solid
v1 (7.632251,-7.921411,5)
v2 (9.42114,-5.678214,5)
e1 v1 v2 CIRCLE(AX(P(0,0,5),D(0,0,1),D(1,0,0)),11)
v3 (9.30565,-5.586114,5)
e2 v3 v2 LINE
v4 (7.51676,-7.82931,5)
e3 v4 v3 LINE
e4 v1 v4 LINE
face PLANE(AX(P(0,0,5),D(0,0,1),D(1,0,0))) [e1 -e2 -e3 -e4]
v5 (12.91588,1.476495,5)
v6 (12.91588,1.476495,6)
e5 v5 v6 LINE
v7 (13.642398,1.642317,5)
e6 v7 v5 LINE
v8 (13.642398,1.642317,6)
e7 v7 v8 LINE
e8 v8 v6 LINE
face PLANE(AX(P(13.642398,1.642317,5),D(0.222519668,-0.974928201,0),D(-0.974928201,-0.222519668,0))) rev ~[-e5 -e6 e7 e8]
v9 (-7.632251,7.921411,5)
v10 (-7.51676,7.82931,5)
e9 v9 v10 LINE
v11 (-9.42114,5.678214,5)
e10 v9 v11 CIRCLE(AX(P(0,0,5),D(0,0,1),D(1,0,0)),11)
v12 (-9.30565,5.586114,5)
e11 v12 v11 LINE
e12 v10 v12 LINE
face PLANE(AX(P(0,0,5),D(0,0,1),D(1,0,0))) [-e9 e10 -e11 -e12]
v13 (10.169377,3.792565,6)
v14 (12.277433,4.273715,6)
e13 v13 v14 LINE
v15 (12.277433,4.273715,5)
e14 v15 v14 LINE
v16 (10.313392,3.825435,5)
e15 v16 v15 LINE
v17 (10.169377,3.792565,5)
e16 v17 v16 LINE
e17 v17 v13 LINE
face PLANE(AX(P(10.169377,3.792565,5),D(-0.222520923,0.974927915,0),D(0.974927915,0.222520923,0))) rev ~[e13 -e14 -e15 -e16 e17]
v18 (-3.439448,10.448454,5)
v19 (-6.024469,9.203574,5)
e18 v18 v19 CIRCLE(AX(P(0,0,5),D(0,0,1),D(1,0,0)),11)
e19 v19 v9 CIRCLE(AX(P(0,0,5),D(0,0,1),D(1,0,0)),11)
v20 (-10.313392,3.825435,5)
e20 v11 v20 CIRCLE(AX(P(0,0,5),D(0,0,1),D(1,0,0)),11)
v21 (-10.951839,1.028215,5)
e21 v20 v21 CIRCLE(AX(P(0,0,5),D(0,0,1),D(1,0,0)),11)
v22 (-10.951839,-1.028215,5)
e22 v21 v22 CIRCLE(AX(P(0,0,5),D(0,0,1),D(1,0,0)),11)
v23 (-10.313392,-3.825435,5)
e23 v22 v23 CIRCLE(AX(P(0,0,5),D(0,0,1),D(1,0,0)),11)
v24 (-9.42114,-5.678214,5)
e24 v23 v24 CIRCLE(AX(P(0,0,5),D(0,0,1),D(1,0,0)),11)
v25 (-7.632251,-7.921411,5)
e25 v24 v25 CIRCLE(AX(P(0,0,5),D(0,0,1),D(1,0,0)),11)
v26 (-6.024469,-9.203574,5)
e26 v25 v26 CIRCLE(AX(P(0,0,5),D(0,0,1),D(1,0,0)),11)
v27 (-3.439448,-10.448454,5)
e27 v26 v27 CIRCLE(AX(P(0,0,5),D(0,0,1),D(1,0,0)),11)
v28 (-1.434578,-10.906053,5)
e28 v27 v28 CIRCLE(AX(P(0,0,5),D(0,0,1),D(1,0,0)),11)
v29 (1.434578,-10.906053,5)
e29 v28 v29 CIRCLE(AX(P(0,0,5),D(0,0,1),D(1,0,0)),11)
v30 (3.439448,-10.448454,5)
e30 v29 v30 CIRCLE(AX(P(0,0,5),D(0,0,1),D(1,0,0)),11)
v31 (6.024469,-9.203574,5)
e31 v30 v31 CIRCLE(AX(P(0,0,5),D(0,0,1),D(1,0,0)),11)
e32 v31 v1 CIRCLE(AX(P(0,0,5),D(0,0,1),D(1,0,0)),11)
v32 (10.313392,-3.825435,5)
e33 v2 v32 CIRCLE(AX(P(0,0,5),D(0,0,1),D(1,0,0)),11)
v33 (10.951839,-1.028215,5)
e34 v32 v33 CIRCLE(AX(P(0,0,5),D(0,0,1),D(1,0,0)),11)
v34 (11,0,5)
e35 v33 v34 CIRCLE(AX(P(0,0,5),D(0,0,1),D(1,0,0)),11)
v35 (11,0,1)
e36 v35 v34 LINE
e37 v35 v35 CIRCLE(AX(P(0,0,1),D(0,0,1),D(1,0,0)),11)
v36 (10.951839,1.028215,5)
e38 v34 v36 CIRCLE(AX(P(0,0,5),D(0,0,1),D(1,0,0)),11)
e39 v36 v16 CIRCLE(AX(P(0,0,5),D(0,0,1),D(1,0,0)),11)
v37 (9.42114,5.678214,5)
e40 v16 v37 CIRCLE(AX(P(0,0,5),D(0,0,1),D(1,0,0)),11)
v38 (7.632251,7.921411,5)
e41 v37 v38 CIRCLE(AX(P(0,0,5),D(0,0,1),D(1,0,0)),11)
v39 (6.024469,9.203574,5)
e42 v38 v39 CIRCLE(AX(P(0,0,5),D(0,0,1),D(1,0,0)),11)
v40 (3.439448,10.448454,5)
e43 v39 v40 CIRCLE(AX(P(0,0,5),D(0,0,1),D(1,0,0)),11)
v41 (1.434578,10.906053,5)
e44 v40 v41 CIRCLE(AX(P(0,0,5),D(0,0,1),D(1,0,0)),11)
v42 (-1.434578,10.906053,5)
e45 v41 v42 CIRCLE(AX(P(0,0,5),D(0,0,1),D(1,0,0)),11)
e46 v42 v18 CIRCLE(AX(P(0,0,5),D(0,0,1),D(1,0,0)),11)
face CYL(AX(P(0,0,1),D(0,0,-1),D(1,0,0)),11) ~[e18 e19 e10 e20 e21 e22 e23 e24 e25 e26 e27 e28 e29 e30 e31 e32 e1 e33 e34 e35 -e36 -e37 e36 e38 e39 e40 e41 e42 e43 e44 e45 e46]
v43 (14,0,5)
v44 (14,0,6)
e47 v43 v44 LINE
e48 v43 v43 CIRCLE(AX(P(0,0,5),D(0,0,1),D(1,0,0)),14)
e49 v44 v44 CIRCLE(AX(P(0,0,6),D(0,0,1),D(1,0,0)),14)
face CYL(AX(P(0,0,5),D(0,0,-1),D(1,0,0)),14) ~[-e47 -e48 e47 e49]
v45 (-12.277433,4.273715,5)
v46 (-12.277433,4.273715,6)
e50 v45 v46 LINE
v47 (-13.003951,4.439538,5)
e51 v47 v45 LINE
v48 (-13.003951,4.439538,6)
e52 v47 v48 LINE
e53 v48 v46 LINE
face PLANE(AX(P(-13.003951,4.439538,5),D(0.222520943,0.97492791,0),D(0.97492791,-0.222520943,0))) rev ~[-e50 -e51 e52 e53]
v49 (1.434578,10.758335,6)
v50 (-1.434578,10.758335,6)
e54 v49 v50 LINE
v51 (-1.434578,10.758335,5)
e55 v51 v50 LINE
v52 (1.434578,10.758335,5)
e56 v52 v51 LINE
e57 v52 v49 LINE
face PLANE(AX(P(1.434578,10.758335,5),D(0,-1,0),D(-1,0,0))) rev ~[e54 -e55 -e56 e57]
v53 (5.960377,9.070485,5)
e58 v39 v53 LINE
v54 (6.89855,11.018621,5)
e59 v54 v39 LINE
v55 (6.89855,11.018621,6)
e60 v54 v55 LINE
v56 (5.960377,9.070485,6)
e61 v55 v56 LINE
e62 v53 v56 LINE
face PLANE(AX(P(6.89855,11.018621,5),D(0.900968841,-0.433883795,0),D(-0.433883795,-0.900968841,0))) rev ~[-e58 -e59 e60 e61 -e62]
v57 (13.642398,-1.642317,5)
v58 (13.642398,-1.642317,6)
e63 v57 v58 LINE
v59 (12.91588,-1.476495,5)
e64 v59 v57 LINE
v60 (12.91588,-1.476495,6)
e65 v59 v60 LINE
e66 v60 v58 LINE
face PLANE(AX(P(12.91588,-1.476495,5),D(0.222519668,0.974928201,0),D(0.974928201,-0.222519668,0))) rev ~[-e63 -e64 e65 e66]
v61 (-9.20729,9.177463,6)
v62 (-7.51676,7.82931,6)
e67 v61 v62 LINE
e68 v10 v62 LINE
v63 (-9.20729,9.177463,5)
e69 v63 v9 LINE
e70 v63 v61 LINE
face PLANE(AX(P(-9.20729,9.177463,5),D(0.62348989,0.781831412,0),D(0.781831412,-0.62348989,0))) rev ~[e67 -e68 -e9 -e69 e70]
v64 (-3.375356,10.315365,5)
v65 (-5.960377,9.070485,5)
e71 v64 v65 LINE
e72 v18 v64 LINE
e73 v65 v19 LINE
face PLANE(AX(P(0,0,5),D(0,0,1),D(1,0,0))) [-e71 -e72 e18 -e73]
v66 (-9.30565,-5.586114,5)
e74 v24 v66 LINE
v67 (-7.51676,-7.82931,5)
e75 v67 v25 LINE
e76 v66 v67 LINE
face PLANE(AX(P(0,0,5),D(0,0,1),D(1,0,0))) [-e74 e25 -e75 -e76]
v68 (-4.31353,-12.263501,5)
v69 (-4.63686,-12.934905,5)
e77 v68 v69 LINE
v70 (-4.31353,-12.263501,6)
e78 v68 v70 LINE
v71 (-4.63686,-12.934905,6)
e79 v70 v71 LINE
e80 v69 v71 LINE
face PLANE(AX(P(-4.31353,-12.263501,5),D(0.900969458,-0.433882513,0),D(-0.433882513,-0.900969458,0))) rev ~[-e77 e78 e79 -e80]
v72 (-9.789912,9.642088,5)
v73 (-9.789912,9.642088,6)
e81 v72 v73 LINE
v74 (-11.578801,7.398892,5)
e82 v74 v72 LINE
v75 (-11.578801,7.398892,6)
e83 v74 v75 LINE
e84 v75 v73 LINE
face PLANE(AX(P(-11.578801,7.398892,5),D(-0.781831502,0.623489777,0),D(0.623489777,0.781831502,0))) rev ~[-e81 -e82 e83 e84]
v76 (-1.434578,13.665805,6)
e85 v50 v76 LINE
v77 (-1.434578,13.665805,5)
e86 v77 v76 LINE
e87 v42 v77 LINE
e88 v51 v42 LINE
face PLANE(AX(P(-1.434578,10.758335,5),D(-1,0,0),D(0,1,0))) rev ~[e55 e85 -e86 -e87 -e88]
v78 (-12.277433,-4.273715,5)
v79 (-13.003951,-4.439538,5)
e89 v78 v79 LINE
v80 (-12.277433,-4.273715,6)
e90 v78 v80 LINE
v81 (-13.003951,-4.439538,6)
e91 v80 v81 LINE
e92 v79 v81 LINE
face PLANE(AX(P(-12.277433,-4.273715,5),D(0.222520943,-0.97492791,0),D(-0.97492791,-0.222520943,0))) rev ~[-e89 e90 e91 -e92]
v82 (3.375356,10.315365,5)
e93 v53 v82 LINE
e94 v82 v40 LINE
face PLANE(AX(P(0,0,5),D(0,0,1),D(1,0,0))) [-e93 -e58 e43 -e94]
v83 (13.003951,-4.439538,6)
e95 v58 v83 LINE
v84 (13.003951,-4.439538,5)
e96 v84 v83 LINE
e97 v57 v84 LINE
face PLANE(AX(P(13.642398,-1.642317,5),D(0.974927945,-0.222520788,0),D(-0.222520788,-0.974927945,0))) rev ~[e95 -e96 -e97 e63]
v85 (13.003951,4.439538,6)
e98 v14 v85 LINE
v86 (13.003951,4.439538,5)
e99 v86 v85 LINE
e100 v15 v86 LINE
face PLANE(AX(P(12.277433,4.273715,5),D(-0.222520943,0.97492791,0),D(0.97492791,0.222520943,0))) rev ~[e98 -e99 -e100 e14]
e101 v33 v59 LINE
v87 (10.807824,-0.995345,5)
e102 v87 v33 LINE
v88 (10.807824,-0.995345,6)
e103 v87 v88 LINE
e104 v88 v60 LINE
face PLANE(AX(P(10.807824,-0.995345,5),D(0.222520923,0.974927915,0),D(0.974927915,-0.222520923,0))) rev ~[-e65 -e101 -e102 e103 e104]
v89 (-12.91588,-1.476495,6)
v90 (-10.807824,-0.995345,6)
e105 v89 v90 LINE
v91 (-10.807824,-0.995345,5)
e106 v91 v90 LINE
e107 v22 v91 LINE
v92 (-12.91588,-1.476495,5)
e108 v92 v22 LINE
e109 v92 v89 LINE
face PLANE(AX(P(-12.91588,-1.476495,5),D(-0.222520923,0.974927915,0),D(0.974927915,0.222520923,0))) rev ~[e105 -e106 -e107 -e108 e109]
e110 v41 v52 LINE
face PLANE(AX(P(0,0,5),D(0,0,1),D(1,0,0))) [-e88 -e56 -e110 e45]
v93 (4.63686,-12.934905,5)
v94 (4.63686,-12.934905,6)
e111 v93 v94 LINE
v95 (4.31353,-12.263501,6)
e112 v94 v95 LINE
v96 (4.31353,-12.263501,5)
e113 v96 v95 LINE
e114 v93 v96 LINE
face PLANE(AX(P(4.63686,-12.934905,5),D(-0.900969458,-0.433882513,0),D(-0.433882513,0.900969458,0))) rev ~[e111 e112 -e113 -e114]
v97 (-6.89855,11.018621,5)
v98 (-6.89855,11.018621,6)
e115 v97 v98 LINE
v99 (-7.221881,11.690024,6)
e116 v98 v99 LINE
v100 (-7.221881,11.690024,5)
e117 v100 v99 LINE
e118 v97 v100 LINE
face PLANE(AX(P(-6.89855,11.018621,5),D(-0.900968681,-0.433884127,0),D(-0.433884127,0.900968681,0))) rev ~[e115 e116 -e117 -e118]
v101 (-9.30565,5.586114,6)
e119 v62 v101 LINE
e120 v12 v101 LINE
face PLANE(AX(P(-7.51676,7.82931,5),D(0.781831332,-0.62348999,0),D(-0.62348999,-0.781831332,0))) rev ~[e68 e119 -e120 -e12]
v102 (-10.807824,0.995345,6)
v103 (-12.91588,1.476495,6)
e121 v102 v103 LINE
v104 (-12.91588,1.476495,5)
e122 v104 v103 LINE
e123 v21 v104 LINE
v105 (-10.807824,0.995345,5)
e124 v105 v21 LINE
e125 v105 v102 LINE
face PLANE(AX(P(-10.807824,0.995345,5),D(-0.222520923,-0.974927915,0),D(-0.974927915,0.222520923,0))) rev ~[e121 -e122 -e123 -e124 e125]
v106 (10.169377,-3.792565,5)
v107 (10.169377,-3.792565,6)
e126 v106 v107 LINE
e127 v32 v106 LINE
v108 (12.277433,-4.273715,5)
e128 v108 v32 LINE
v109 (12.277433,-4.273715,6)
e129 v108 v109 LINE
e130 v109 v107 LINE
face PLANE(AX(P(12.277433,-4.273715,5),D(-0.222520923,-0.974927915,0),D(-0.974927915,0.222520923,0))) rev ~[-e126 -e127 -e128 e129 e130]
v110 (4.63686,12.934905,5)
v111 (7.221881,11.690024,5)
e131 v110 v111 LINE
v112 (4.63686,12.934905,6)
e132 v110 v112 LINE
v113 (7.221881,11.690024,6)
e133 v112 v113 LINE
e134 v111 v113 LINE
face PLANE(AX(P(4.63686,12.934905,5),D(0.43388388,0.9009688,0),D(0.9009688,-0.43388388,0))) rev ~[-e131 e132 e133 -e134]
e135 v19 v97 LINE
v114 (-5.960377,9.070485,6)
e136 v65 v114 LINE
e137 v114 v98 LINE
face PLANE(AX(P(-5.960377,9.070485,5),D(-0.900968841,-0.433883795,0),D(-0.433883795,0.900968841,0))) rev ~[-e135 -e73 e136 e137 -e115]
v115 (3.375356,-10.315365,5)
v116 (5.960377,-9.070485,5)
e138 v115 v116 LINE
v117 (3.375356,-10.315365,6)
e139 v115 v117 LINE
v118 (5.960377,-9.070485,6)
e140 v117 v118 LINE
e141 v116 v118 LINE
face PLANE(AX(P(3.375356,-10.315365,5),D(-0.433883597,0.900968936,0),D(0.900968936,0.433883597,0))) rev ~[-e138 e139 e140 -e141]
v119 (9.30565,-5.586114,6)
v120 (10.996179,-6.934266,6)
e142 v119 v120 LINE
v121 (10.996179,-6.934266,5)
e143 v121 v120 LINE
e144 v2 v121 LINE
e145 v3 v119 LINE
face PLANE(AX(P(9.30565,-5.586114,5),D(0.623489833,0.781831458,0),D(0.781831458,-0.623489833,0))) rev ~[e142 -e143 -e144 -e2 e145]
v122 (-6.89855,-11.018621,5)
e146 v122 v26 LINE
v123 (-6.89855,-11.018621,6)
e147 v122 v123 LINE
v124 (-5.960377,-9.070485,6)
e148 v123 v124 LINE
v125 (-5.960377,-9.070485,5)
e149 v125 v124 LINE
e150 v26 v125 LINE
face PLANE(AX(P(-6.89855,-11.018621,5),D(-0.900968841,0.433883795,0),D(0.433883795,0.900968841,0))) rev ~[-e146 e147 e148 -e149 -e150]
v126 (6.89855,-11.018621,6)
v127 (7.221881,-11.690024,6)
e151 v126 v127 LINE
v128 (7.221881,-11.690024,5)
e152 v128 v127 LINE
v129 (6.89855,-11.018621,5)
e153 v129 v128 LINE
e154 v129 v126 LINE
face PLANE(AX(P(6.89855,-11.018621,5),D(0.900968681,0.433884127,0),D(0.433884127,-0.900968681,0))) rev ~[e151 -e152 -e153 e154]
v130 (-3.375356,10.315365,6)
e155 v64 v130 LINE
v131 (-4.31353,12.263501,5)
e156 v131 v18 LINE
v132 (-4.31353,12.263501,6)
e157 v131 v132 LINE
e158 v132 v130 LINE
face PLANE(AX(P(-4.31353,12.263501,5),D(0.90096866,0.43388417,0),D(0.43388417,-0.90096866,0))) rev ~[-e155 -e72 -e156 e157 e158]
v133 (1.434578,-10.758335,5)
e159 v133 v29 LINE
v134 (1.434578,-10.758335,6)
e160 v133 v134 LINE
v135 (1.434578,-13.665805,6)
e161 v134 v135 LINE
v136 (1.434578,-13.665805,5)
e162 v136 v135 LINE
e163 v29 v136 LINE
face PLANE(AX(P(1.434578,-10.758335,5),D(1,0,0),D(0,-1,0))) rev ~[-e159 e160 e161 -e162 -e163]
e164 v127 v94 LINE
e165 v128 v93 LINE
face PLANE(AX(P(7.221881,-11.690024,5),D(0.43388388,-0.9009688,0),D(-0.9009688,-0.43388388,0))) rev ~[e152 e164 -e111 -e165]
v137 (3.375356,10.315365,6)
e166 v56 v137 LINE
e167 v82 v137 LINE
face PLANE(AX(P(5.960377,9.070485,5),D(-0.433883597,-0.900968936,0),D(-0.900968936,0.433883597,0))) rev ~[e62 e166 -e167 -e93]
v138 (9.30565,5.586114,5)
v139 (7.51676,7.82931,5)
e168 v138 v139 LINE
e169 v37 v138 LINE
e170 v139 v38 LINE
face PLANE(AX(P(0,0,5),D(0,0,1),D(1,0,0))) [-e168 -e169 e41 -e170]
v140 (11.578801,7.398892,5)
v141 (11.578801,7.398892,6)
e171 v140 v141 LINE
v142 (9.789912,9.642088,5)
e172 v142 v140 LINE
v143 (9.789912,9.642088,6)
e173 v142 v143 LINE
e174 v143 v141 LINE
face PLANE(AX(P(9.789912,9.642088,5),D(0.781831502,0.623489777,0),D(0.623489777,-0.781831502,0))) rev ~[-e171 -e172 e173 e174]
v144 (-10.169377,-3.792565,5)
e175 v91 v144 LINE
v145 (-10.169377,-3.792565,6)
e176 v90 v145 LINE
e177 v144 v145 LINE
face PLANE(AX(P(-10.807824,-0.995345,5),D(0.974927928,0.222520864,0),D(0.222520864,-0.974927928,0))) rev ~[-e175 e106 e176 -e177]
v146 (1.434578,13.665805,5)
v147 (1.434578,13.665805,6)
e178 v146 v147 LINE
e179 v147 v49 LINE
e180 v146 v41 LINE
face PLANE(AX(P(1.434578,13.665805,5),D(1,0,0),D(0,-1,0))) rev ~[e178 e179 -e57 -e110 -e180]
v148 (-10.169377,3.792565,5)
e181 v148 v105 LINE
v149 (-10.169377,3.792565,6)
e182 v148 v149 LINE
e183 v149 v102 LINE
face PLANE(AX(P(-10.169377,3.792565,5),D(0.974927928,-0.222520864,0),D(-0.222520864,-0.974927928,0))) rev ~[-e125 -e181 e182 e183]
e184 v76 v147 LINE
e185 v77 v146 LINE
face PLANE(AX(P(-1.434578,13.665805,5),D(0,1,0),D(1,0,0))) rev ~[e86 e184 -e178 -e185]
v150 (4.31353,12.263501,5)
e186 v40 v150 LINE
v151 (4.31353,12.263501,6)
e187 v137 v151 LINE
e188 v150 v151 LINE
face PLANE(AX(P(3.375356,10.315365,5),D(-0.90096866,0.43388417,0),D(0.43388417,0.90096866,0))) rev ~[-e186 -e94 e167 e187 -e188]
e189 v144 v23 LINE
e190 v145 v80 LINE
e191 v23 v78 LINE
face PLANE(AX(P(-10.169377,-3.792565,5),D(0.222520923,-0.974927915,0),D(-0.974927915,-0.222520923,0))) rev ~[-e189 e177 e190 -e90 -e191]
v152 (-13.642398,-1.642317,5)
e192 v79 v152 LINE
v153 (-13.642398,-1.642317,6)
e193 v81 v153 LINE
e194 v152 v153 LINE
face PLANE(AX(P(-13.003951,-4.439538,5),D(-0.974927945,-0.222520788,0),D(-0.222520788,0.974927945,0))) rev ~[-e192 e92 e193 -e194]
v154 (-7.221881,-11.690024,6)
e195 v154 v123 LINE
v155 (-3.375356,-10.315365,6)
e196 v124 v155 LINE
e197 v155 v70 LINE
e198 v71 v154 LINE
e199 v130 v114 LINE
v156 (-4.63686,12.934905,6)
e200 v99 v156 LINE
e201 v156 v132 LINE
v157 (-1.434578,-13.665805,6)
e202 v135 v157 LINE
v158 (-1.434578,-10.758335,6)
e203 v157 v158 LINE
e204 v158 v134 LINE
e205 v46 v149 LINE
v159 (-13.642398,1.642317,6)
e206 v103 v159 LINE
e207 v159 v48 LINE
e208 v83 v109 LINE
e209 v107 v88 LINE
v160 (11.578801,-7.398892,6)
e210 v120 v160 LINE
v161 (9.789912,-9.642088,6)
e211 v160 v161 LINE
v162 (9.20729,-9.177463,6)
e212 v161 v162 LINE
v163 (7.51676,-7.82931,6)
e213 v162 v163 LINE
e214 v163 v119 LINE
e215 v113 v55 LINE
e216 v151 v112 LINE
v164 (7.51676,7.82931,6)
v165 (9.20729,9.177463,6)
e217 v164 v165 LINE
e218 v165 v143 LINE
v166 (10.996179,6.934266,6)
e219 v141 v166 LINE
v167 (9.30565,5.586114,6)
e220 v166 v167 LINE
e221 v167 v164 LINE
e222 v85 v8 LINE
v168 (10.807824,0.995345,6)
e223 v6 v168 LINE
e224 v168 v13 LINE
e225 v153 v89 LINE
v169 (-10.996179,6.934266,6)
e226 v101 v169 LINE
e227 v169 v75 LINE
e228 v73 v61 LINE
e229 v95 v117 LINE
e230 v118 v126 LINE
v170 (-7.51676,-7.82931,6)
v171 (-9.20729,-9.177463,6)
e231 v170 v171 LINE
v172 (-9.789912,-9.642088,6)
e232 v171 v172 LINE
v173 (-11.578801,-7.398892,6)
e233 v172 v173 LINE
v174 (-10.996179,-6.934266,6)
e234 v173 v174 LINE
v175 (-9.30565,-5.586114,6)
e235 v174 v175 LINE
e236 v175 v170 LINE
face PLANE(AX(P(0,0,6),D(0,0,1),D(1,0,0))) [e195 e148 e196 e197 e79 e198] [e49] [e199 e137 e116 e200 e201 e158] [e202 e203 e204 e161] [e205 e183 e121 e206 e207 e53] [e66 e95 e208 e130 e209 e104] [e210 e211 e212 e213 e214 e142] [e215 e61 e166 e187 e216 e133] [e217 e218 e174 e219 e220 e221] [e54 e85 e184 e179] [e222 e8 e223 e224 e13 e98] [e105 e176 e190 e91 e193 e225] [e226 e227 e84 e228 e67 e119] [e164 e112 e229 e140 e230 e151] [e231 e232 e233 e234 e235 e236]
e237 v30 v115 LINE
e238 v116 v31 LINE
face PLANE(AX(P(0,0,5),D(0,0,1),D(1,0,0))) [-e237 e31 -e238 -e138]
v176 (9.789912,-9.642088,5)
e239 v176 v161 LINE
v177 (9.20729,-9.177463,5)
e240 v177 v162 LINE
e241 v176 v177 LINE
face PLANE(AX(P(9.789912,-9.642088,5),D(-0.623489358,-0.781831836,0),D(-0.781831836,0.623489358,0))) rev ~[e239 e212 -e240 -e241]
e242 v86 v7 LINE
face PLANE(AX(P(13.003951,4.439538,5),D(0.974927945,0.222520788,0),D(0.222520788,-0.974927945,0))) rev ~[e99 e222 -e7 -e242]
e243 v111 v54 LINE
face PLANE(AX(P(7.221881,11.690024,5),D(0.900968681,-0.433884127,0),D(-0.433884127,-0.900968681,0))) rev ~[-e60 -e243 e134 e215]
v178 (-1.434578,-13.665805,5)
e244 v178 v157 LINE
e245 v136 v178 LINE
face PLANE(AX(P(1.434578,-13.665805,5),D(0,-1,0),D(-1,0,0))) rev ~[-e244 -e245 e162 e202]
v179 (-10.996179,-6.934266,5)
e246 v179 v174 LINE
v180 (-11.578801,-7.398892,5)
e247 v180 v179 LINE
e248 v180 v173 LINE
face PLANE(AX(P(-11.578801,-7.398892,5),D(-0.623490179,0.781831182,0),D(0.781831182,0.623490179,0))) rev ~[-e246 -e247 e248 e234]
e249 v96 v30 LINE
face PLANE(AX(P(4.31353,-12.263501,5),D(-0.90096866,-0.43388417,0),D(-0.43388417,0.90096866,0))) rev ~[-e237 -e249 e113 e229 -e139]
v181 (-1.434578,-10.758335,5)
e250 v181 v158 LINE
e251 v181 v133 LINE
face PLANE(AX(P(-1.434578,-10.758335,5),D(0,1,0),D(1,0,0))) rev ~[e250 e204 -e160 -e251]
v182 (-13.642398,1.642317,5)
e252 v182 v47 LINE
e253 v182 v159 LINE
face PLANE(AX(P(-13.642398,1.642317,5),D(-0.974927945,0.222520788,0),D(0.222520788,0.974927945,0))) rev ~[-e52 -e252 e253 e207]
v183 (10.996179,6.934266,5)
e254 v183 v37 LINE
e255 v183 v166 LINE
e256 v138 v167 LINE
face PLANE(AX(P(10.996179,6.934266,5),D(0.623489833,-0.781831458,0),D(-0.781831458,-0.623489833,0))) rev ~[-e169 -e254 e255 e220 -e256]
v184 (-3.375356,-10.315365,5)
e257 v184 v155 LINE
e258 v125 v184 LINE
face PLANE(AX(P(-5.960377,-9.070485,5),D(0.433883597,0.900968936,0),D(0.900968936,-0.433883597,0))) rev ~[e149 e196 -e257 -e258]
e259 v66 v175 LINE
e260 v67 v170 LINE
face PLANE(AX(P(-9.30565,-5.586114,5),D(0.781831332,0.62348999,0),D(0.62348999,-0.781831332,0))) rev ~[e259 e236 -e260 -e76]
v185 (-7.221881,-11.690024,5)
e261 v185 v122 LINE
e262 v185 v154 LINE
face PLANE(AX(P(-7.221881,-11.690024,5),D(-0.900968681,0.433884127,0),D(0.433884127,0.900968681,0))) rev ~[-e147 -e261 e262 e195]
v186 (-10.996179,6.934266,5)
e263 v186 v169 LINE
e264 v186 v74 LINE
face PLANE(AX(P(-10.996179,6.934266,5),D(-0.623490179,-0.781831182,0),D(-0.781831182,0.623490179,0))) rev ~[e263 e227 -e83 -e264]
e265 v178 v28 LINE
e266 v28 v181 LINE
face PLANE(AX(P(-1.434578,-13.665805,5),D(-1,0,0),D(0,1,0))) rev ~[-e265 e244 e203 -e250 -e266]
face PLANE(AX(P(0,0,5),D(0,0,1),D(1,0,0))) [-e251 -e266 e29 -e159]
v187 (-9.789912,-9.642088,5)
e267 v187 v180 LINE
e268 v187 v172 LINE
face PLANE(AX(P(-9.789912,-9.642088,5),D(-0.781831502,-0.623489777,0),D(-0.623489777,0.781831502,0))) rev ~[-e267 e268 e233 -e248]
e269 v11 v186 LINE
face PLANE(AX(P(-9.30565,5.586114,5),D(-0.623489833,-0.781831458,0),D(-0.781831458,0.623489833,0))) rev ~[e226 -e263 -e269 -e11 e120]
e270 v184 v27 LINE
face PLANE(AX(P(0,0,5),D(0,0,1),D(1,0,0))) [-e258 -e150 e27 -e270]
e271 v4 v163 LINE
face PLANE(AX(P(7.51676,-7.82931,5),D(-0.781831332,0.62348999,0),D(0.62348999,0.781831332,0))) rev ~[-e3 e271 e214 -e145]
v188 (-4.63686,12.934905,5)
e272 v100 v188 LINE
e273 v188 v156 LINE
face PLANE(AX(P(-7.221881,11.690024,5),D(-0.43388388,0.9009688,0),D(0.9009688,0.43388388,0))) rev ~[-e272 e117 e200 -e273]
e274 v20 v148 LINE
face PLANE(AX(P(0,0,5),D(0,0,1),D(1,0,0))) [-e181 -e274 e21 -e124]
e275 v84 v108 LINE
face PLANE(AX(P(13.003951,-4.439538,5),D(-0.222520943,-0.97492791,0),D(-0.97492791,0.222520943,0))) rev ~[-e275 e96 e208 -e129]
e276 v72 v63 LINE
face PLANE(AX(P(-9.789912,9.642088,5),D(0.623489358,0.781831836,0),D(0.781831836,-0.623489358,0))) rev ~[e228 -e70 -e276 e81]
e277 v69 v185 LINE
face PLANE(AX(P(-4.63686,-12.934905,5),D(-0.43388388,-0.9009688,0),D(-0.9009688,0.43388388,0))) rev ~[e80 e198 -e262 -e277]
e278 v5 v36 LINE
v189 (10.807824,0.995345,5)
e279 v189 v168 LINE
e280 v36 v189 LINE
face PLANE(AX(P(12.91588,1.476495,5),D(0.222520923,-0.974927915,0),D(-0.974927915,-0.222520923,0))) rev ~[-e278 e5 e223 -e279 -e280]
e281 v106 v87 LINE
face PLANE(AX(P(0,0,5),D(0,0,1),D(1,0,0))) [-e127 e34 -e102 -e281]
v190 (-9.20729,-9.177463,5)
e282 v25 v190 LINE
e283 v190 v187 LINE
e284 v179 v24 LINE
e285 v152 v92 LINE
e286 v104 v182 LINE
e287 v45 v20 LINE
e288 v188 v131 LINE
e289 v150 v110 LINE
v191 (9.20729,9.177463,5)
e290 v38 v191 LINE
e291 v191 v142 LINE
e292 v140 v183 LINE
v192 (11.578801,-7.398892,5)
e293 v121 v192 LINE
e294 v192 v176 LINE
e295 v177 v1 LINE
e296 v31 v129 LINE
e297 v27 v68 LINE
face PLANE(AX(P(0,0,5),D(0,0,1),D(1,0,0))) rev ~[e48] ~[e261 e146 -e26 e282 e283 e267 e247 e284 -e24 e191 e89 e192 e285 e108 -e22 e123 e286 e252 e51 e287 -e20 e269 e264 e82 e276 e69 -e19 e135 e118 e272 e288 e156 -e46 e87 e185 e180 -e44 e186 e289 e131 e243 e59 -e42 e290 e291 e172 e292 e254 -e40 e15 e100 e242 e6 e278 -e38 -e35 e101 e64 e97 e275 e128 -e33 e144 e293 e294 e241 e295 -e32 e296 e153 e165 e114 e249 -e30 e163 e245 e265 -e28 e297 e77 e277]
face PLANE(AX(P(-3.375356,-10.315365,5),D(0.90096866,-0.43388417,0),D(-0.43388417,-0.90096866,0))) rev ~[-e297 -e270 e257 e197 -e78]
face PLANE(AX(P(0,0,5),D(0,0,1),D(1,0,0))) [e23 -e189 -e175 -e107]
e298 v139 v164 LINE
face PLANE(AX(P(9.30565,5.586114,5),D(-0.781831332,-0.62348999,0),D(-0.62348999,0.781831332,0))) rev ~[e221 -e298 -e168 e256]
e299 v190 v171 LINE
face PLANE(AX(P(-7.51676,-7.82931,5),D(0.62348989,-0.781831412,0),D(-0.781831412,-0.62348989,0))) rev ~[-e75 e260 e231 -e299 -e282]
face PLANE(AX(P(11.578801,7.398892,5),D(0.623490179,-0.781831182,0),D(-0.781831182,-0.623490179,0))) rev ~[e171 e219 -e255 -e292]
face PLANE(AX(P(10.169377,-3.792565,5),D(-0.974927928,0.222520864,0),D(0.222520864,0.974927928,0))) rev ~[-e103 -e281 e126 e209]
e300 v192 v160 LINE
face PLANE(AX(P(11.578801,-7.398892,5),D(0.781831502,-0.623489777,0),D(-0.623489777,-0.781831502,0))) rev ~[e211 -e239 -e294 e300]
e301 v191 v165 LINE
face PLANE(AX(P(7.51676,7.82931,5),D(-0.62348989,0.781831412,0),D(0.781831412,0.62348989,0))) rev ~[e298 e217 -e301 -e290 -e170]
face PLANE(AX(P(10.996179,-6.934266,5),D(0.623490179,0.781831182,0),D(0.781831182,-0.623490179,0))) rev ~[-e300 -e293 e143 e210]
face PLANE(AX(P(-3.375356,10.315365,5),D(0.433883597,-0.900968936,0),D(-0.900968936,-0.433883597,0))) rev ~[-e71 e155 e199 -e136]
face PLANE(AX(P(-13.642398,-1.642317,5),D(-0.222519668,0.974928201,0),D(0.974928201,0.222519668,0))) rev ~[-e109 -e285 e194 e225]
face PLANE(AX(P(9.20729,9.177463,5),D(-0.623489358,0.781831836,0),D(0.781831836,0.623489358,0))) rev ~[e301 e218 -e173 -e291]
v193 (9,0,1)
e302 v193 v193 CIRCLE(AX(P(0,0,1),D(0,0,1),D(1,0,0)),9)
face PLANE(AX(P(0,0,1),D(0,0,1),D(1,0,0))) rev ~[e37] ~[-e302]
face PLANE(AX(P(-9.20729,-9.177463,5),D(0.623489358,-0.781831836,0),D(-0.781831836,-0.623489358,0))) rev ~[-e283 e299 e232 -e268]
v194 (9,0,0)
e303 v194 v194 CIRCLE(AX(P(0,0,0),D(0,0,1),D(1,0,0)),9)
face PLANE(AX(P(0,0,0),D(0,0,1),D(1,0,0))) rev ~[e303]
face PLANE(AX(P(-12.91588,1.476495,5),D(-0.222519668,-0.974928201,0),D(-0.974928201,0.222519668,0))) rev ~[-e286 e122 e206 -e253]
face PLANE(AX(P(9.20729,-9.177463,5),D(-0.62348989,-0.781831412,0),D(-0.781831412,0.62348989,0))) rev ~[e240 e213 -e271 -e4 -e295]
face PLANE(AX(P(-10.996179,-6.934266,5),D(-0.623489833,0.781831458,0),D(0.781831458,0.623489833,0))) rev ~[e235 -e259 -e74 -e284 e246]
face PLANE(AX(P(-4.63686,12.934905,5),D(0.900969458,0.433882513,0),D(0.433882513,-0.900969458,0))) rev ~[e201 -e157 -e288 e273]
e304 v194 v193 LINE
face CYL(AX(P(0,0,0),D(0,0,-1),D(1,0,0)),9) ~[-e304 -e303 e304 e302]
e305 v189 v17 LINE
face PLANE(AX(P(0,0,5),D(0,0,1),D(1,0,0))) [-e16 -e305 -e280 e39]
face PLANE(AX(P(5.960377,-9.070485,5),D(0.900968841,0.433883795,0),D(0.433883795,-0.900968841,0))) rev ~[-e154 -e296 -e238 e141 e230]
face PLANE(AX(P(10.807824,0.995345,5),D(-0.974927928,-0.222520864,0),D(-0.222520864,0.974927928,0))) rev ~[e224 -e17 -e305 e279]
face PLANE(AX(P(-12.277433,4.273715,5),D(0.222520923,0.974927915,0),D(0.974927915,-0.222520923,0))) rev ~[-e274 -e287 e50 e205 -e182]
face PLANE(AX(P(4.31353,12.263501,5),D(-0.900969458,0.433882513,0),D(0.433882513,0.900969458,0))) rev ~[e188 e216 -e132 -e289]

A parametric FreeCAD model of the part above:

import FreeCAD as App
import Part
import Sketcher

V = App.Vector

doc = App.newDocument("Part")
body = doc.addObject("PartDesign::Body", "Body")

# Sketch on XY plane
sketch1 = doc.addObject("Sketcher::SketchObject", "Sketch")
body.addObject(sketch1)
sketch1.AttachmentSupport = (doc.XY_Plane, [""])
sketch1.MapMode = "FlatFace"
sketch1.addGeometry(Part.Circle(V(0, 0, 0), V(0, 0, 1), 9), False)
sketch1.addConstraint(Sketcher.Constraint("Coincident", 0, 3, -1, 1))
sketch1.addConstraint(Sketcher.Constraint("Diameter", 0, 18.0))
pad1 = doc.addObject("PartDesign::Pad", "Pad")
body.addObject(pad1)
pad1.Profile = sketch1
pad1.Length = 1

# Sketch on XY plane
sketch2 = doc.addObject("Sketcher::SketchObject", "Sketch001")
body.addObject(sketch2)
sketch2.AttachmentSupport = (doc.XY_Plane, [""])
sketch2.MapMode = "FlatFace"
sketch2.AttachmentOffset = App.Placement(V(0, 0, 1), App.Rotation())
sketch2.addGeometry(Part.Circle(V(0, 0, 0), V(0, 0, 1), 11), False)
sketch2.addConstraint(Sketcher.Constraint("Coincident", 0, 3, -1, 1))
sketch2.addConstraint(Sketcher.Constraint("Diameter", 0, 22.0))
pad2 = doc.addObject("PartDesign::Pad", "Pad001")
body.addObject(pad2)
pad2.Profile = sketch2
pad2.Length = 4

# Sketch on XY plane
sketch3 = doc.addObject("Sketcher::SketchObject", "Sketch002")
body.addObject(sketch3)
sketch3.AttachmentSupport = (doc.XY_Plane, [""])
sketch3.MapMode = "FlatFace"
sketch3.AttachmentOffset = App.Placement(V(0, 0, 5), App.Rotation())
sketch3.addGeometry(Part.Circle(V(0, 0, 0), V(0, 0, 1), 14), False)
sketch3.addGeometry(Part.LineSegment(V(13.6, 1.6, 0), V(12.9, 1.5, 0)), False)
sketch3.addGeometry(Part.LineSegment(V(12.9, 1.5, 0), V(10.8, 1, 0)), False)
sketch3.addGeometry(Part.LineSegment(V(10.8, 1, 0), V(10.2, 3.8, 0)), False)
sketch3.addGeometry(Part.LineSegment(V(10.2, 3.8, 0), V(12.3, 4.3, 0)), False)
sketch3.addGeometry(Part.LineSegment(V(12.3, 4.3, 0), V(13, 4.4, 0)), False)
sketch3.addGeometry(Part.LineSegment(V(13, 4.4, 0), V(13.6, 1.6, 0)), False)
sketch3.addGeometry(Part.LineSegment(V(11.6, 7.4, 0), V(11, 6.9, 0)), False)
sketch3.addGeometry(Part.LineSegment(V(11, 6.9, 0), V(9.3, 5.6, 0)), False)
sketch3.addGeometry(Part.LineSegment(V(9.3, 5.6, 0), V(7.5, 7.8, 0)), False)
sketch3.addGeometry(Part.LineSegment(V(7.5, 7.8, 0), V(9.2, 9.2, 0)), False)
sketch3.addGeometry(Part.LineSegment(V(9.2, 9.2, 0), V(9.8, 9.6, 0)), False)
sketch3.addGeometry(Part.LineSegment(V(9.8, 9.6, 0), V(11.6, 7.4, 0)), False)
sketch3.addGeometry(Part.LineSegment(V(7.2, 11.7, 0), V(6.9, 11, 0)), False)
sketch3.addGeometry(Part.LineSegment(V(6.9, 11, 0), V(6, 9.1, 0)), False)
sketch3.addGeometry(Part.LineSegment(V(6, 9.1, 0), V(3.4, 10.3, 0)), False)
sketch3.addGeometry(Part.LineSegment(V(3.4, 10.3, 0), V(4.3, 12.3, 0)), False)
sketch3.addGeometry(Part.LineSegment(V(4.3, 12.3, 0), V(4.6, 12.9, 0)), False)
sketch3.addGeometry(Part.LineSegment(V(4.6, 12.9, 0), V(7.2, 11.7, 0)), False)
sketch3.addGeometry(Part.LineSegment(V(1.4, 13.7, 0), V(1.4, 10.8, 0)), False)
sketch3.addGeometry(Part.LineSegment(V(1.4, 10.8, 0), V(-1.4, 10.8, 0)), False)
sketch3.addGeometry(Part.LineSegment(V(-1.4, 10.8, 0), V(-1.4, 13.7, 0)), False)
sketch3.addGeometry(Part.LineSegment(V(-1.4, 13.7, 0), V(1.4, 13.7, 0)), False)
sketch3.addGeometry(Part.LineSegment(V(-4.6, 12.9, 0), V(-4.3, 12.3, 0)), False)
sketch3.addGeometry(Part.LineSegment(V(-4.3, 12.3, 0), V(-3.4, 10.3, 0)), False)
sketch3.addGeometry(Part.LineSegment(V(-3.4, 10.3, 0), V(-6, 9.1, 0)), False)
sketch3.addGeometry(Part.LineSegment(V(-6, 9.1, 0), V(-6.9, 11, 0)), False)
sketch3.addGeometry(Part.LineSegment(V(-6.9, 11, 0), V(-7.2, 11.7, 0)), False)
sketch3.addGeometry(Part.LineSegment(V(-7.2, 11.7, 0), V(-4.6, 12.9, 0)), False)
sketch3.addGeometry(Part.LineSegment(V(-9.8, 9.6, 0), V(-9.2, 9.2, 0)), False)
sketch3.addGeometry(Part.LineSegment(V(-9.2, 9.2, 0), V(-7.5, 7.8, 0)), False)
sketch3.addGeometry(Part.LineSegment(V(-7.5, 7.8, 0), V(-9.3, 5.6, 0)), False)
sketch3.addGeometry(Part.LineSegment(V(-9.3, 5.6, 0), V(-11, 6.9, 0)), False)
sketch3.addGeometry(Part.LineSegment(V(-11, 6.9, 0), V(-11.6, 7.4, 0)), False)
sketch3.addGeometry(Part.LineSegment(V(-11.6, 7.4, 0), V(-9.8, 9.6, 0)), False)
sketch3.addGeometry(Part.LineSegment(V(-13, 4.4, 0), V(-12.3, 4.3, 0)), False)
sketch3.addGeometry(Part.LineSegment(V(-12.3, 4.3, 0), V(-10.2, 3.8, 0)), False)
sketch3.addGeometry(Part.LineSegment(V(-10.2, 3.8, 0), V(-10.8, 1, 0)), False)
sketch3.addGeometry(Part.LineSegment(V(-10.8, 1, 0), V(-12.9, 1.5, 0)), False)
sketch3.addGeometry(Part.LineSegment(V(-12.9, 1.5, 0), V(-13.6, 1.6, 0)), False)
sketch3.addGeometry(Part.LineSegment(V(-13.6, 1.6, 0), V(-13, 4.4, 0)), False)
sketch3.addGeometry(Part.LineSegment(V(-13.6, -1.6, 0), V(-12.9, -1.5, 0)), False)
sketch3.addGeometry(Part.LineSegment(V(-12.9, -1.5, 0), V(-10.8, -1, 0)), False)
sketch3.addGeometry(Part.LineSegment(V(-10.8, -1, 0), V(-10.2, -3.8, 0)), False)
sketch3.addGeometry(Part.LineSegment(V(-10.2, -3.8, 0), V(-12.3, -4.3, 0)), False)
sketch3.addGeometry(Part.LineSegment(V(-12.3, -4.3, 0), V(-13, -4.4, 0)), False)
sketch3.addGeometry(Part.LineSegment(V(-13, -4.4, 0), V(-13.6, -1.6, 0)), False)
sketch3.addGeometry(Part.LineSegment(V(-11.6, -7.4, 0), V(-11, -6.9, 0)), False)
sketch3.addGeometry(Part.LineSegment(V(-11, -6.9, 0), V(-9.3, -5.6, 0)), False)
sketch3.addGeometry(Part.LineSegment(V(-9.3, -5.6, 0), V(-7.5, -7.8, 0)), False)
sketch3.addGeometry(Part.LineSegment(V(-7.5, -7.8, 0), V(-9.2, -9.2, 0)), False)
sketch3.addGeometry(Part.LineSegment(V(-9.2, -9.2, 0), V(-9.8, -9.6, 0)), False)
sketch3.addGeometry(Part.LineSegment(V(-9.8, -9.6, 0), V(-11.6, -7.4, 0)), False)
sketch3.addGeometry(Part.LineSegment(V(-7.2, -11.7, 0), V(-6.9, -11, 0)), False)
sketch3.addGeometry(Part.LineSegment(V(-6.9, -11, 0), V(-6, -9.1, 0)), False)
sketch3.addGeometry(Part.LineSegment(V(-6, -9.1, 0), V(-3.4, -10.3, 0)), False)
sketch3.addGeometry(Part.LineSegment(V(-3.4, -10.3, 0), V(-4.3, -12.3, 0)), False)
sketch3.addGeometry(Part.LineSegment(V(-4.3, -12.3, 0), V(-4.6, -12.9, 0)), False)
sketch3.addGeometry(Part.LineSegment(V(-4.6, -12.9, 0), V(-7.2, -11.7, 0)), False)
sketch3.addGeometry(Part.LineSegment(V(-1.4, -13.7, 0), V(-1.4, -10.8, 0)), False)
sketch3.addGeometry(Part.LineSegment(V(-1.4, -10.8, 0), V(1.4, -10.8, 0)), False)
sketch3.addGeometry(Part.LineSegment(V(1.4, -10.8, 0), V(1.4, -13.7, 0)), False)
sketch3.addGeometry(Part.LineSegment(V(1.4, -13.7, 0), V(-1.4, -13.7, 0)), False)
sketch3.addGeometry(Part.LineSegment(V(4.6, -12.9, 0), V(4.3, -12.3, 0)), False)
sketch3.addGeometry(Part.LineSegment(V(4.3, -12.3, 0), V(3.4, -10.3, 0)), False)
sketch3.addGeometry(Part.LineSegment(V(3.4, -10.3, 0), V(6, -9.1, 0)), False)
sketch3.addGeometry(Part.LineSegment(V(6, -9.1, 0), V(6.9, -11, 0)), False)
sketch3.addGeometry(Part.LineSegment(V(6.9, -11, 0), V(7.2, -11.7, 0)), False)
sketch3.addGeometry(Part.LineSegment(V(7.2, -11.7, 0), V(4.6, -12.9, 0)), False)
sketch3.addGeometry(Part.LineSegment(V(9.8, -9.6, 0), V(9.2, -9.2, 0)), False)
sketch3.addGeometry(Part.LineSegment(V(9.2, -9.2, 0), V(7.5, -7.8, 0)), False)
sketch3.addGeometry(Part.LineSegment(V(7.5, -7.8, 0), V(9.3, -5.6, 0)), False)
sketch3.addGeometry(Part.LineSegment(V(9.3, -5.6, 0), V(11, -6.9, 0)), False)
sketch3.addGeometry(Part.LineSegment(V(11, -6.9, 0), V(11.6, -7.4, 0)), False)
sketch3.addGeometry(Part.LineSegment(V(11.6, -7.4, 0), V(9.8, -9.6, 0)), False)
sketch3.addGeometry(Part.LineSegment(V(13, -4.4, 0), V(12.3, -4.3, 0)), False)
sketch3.addGeometry(Part.LineSegment(V(12.3, -4.3, 0), V(10.2, -3.8, 0)), False)
sketch3.addGeometry(Part.LineSegment(V(10.2, -3.8, 0), V(10.8, -1, 0)), False)
sketch3.addGeometry(Part.LineSegment(V(10.8, -1, 0), V(12.9, -1.5, 0)), False)
sketch3.addGeometry(Part.LineSegment(V(12.9, -1.5, 0), V(13.6, -1.6, 0)), False)
sketch3.addGeometry(Part.LineSegment(V(13.6, -1.6, 0), V(13, -4.4, 0)), False)
sketch3.addConstraint(Sketcher.Constraint("Coincident", 1, 2, 2, 1))
sketch3.addConstraint(Sketcher.Constraint("Coincident", 2, 2, 3, 1))
sketch3.addConstraint(Sketcher.Constraint("Coincident", 3, 2, 4, 1))
sketch3.addConstraint(Sketcher.Constraint("Coincident", 4, 2, 5, 1))
sketch3.addConstraint(Sketcher.Constraint("Coincident", 5, 2, 6, 1))
sketch3.addConstraint(Sketcher.Constraint("Coincident", 6, 2, 1, 1))
sketch3.addConstraint(Sketcher.Constraint("Coincident", 7, 2, 8, 1))
sketch3.addConstraint(Sketcher.Constraint("Coincident", 8, 2, 9, 1))
sketch3.addConstraint(Sketcher.Constraint("Coincident", 9, 2, 10, 1))
sketch3.addConstraint(Sketcher.Constraint("Coincident", 10, 2, 11, 1))
sketch3.addConstraint(Sketcher.Constraint("Coincident", 11, 2, 12, 1))
sketch3.addConstraint(Sketcher.Constraint("Coincident", 12, 2, 7, 1))
sketch3.addConstraint(Sketcher.Constraint("Coincident", 13, 2, 14, 1))
sketch3.addConstraint(Sketcher.Constraint("Coincident", 14, 2, 15, 1))
sketch3.addConstraint(Sketcher.Constraint("Coincident", 15, 2, 16, 1))
sketch3.addConstraint(Sketcher.Constraint("Coincident", 16, 2, 17, 1))
sketch3.addConstraint(Sketcher.Constraint("Coincident", 17, 2, 18, 1))
sketch3.addConstraint(Sketcher.Constraint("Coincident", 18, 2, 13, 1))
sketch3.addConstraint(Sketcher.Constraint("Coincident", 19, 2, 20, 1))
sketch3.addConstraint(Sketcher.Constraint("Coincident", 20, 2, 21, 1))
sketch3.addConstraint(Sketcher.Constraint("Coincident", 21, 2, 22, 1))
sketch3.addConstraint(Sketcher.Constraint("Coincident", 22, 2, 19, 1))
sketch3.addConstraint(Sketcher.Constraint("Coincident", 23, 2, 24, 1))
sketch3.addConstraint(Sketcher.Constraint("Coincident", 24, 2, 25, 1))
sketch3.addConstraint(Sketcher.Constraint("Coincident", 25, 2, 26, 1))
sketch3.addConstraint(Sketcher.Constraint("Coincident", 26, 2, 27, 1))
sketch3.addConstraint(Sketcher.Constraint("Coincident", 27, 2, 28, 1))
sketch3.addConstraint(Sketcher.Constraint("Coincident", 28, 2, 23, 1))
sketch3.addConstraint(Sketcher.Constraint("Coincident", 29, 2, 30, 1))
sketch3.addConstraint(Sketcher.Constraint("Coincident", 30, 2, 31, 1))
sketch3.addConstraint(Sketcher.Constraint("Coincident", 31, 2, 32, 1))
sketch3.addConstraint(Sketcher.Constraint("Coincident", 32, 2, 33, 1))
sketch3.addConstraint(Sketcher.Constraint("Coincident", 33, 2, 34, 1))
sketch3.addConstraint(Sketcher.Constraint("Coincident", 34, 2, 29, 1))
sketch3.addConstraint(Sketcher.Constraint("Coincident", 35, 2, 36, 1))
sketch3.addConstraint(Sketcher.Constraint("Coincident", 36, 2, 37, 1))
sketch3.addConstraint(Sketcher.Constraint("Coincident", 37, 2, 38, 1))
sketch3.addConstraint(Sketcher.Constraint("Coincident", 38, 2, 39, 1))
sketch3.addConstraint(Sketcher.Constraint("Coincident", 39, 2, 40, 1))
sketch3.addConstraint(Sketcher.Constraint("Coincident", 40, 2, 35, 1))
sketch3.addConstraint(Sketcher.Constraint("Coincident", 41, 2, 42, 1))
sketch3.addConstraint(Sketcher.Constraint("Coincident", 42, 2, 43, 1))
sketch3.addConstraint(Sketcher.Constraint("Coincident", 43, 2, 44, 1))
sketch3.addConstraint(Sketcher.Constraint("Coincident", 44, 2, 45, 1))
sketch3.addConstraint(Sketcher.Constraint("Coincident", 45, 2, 46, 1))
sketch3.addConstraint(Sketcher.Constraint("Coincident", 46, 2, 41, 1))
sketch3.addConstraint(Sketcher.Constraint("Coincident", 47, 2, 48, 1))
sketch3.addConstraint(Sketcher.Constraint("Coincident", 48, 2, 49, 1))
sketch3.addConstraint(Sketcher.Constraint("Coincident", 49, 2, 50, 1))
sketch3.addConstraint(Sketcher.Constraint("Coincident", 50, 2, 51, 1))
sketch3.addConstraint(Sketcher.Constraint("Coincident", 51, 2, 52, 1))
sketch3.addConstraint(Sketcher.Constraint("Coincident", 52, 2, 47, 1))
sketch3.addConstraint(Sketcher.Constraint("Coincident", 53, 2, 54, 1))
sketch3.addConstraint(Sketcher.Constraint("Coincident", 54, 2, 55, 1))
sketch3.addConstraint(Sketcher.Constraint("Coincident", 55, 2, 56, 1))
sketch3.addConstraint(Sketcher.Constraint("Coincident", 56, 2, 57, 1))
sketch3.addConstraint(Sketcher.Constraint("Coincident", 57, 2, 58, 1))
sketch3.addConstraint(Sketcher.Constraint("Coincident", 58, 2, 53, 1))
sketch3.addConstraint(Sketcher.Constraint("Coincident", 59, 2, 60, 1))
sketch3.addConstraint(Sketcher.Constraint("Coincident", 60, 2, 61, 1))
sketch3.addConstraint(Sketcher.Constraint("Coincident", 61, 2, 62, 1))
sketch3.addConstraint(Sketcher.Constraint("Coincident", 62, 2, 59, 1))
sketch3.addConstraint(Sketcher.Constraint("Coincident", 63, 2, 64, 1))
sketch3.addConstraint(Sketcher.Constraint("Coincident", 64, 2, 65, 1))
sketch3.addConstraint(Sketcher.Constraint("Coincident", 65, 2, 66, 1))
sketch3.addConstraint(Sketcher.Constraint("Coincident", 66, 2, 67, 1))
sketch3.addConstraint(Sketcher.Constraint("Coincident", 67, 2, 68, 1))
sketch3.addConstraint(Sketcher.Constraint("Coincident", 68, 2, 63, 1))
sketch3.addConstraint(Sketcher.Constraint("Coincident", 69, 2, 70, 1))
sketch3.addConstraint(Sketcher.Constraint("Coincident", 70, 2, 71, 1))
sketch3.addConstraint(Sketcher.Constraint("Coincident", 71, 2, 72, 1))
sketch3.addConstraint(Sketcher.Constraint("Coincident", 72, 2, 73, 1))
sketch3.addConstraint(Sketcher.Constraint("Coincident", 73, 2, 74, 1))
sketch3.addConstraint(Sketcher.Constraint("Coincident", 74, 2, 69, 1))
sketch3.addConstraint(Sketcher.Constraint("Coincident", 75, 2, 76, 1))
sketch3.addConstraint(Sketcher.Constraint("Coincident", 76, 2, 77, 1))
sketch3.addConstraint(Sketcher.Constraint("Coincident", 77, 2, 78, 1))
sketch3.addConstraint(Sketcher.Constraint("Coincident", 78, 2, 79, 1))
sketch3.addConstraint(Sketcher.Constraint("Coincident", 79, 2, 80, 1))
sketch3.addConstraint(Sketcher.Constraint("Coincident", 80, 2, 75, 1))
sketch3.addConstraint(Sketcher.Constraint("Vertical", 19))
sketch3.addConstraint(Sketcher.Constraint("Horizontal", 20))
sketch3.addConstraint(Sketcher.Constraint("Vertical", 21))
sketch3.addConstraint(Sketcher.Constraint("Horizontal", 22))
sketch3.addConstraint(Sketcher.Constraint("Vertical", 59))
sketch3.addConstraint(Sketcher.Constraint("Horizontal", 60))
sketch3.addConstraint(Sketcher.Constraint("Vertical", 61))
sketch3.addConstraint(Sketcher.Constraint("Horizontal", 62))
sketch3.addConstraint(Sketcher.Constraint("Coincident", 0, 3, -1, 1))
sketch3.addConstraint(Sketcher.Constraint("Symmetric", 1, 2, 41, 2, -1, 1))
sketch3.addConstraint(Sketcher.Constraint("Symmetric", 2, 2, 42, 2, -1, 1))
sketch3.addConstraint(Sketcher.Constraint("Symmetric", 3, 2, 43, 2, -1, 1))
sketch3.addConstraint(Sketcher.Constraint("Symmetric", 4, 2, 44, 2, -1, 1))
sketch3.addConstraint(Sketcher.Constraint("Symmetric", 5, 2, 45, 2, -1, 1))
sketch3.addConstraint(Sketcher.Constraint("Symmetric", 6, 2, 46, 2, -1, 1))
sketch3.addConstraint(Sketcher.Constraint("Symmetric", 7, 2, 47, 2, -1, 1))
sketch3.addConstraint(Sketcher.Constraint("Symmetric", 8, 2, 48, 2, -1, 1))
sketch3.addConstraint(Sketcher.Constraint("Symmetric", 9, 2, 49, 2, -1, 1))
sketch3.addConstraint(Sketcher.Constraint("Symmetric", 10, 2, 50, 2, -1, 1))
sketch3.addConstraint(Sketcher.Constraint("Symmetric", 11, 2, 51, 2, -1, 1))
sketch3.addConstraint(Sketcher.Constraint("Symmetric", 12, 2, 52, 2, -1, 1))
sketch3.addConstraint(Sketcher.Constraint("Symmetric", 13, 2, 53, 2, -1, 1))
sketch3.addConstraint(Sketcher.Constraint("Symmetric", 14, 2, 54, 2, -1, 1))
sketch3.addConstraint(Sketcher.Constraint("Symmetric", 15, 2, 55, 2, -1, 1))
sketch3.addConstraint(Sketcher.Constraint("Symmetric", 16, 2, 56, 2, -1, 1))
sketch3.addConstraint(Sketcher.Constraint("Symmetric", 17, 2, 57, 2, -1, 1))
sketch3.addConstraint(Sketcher.Constraint("Symmetric", 18, 2, 58, 2, -1, 1))
sketch3.addConstraint(Sketcher.Constraint("Symmetric", 19, 2, 59, 2, -1, 1))
sketch3.addConstraint(Sketcher.Constraint("Symmetric", 21, 2, 61, 2, -1, 1))
sketch3.addConstraint(Sketcher.Constraint("Symmetric", 23, 2, 63, 2, -1, 1))
sketch3.addConstraint(Sketcher.Constraint("Symmetric", 24, 2, 64, 2, -1, 1))
sketch3.addConstraint(Sketcher.Constraint("Symmetric", 25, 2, 65, 2, -1, 1))
sketch3.addConstraint(Sketcher.Constraint("Symmetric", 26, 2, 66, 2, -1, 1))
sketch3.addConstraint(Sketcher.Constraint("Symmetric", 27, 2, 67, 2, -1, 1))
sketch3.addConstraint(Sketcher.Constraint("Symmetric", 28, 2, 68, 2, -1, 1))
sketch3.addConstraint(Sketcher.Constraint("Symmetric", 29, 2, 69, 2, -1, 1))
sketch3.addConstraint(Sketcher.Constraint("Symmetric", 30, 2, 70, 2, -1, 1))
sketch3.addConstraint(Sketcher.Constraint("Symmetric", 31, 2, 71, 2, -1, 1))
sketch3.addConstraint(Sketcher.Constraint("Symmetric", 32, 2, 72, 2, -1, 1))
sketch3.addConstraint(Sketcher.Constraint("Symmetric", 33, 2, 73, 2, -1, 1))
sketch3.addConstraint(Sketcher.Constraint("Symmetric", 34, 2, 74, 2, -1, 1))
sketch3.addConstraint(Sketcher.Constraint("Symmetric", 35, 2, 75, 2, -1, 1))
sketch3.addConstraint(Sketcher.Constraint("Symmetric", 36, 2, 76, 2, -1, 1))
sketch3.addConstraint(Sketcher.Constraint("Symmetric", 37, 2, 77, 2, -1, 1))
sketch3.addConstraint(Sketcher.Constraint("Symmetric", 38, 2, 78, 2, -1, 1))
sketch3.addConstraint(Sketcher.Constraint("Symmetric", 39, 2, 79, 2, -1, 1))
sketch3.addConstraint(Sketcher.Constraint("Symmetric", 40, 2, 80, 2, -1, 1))
sketch3.addConstraint(Sketcher.Constraint("Symmetric", 16, 2, 23, 2, -2))
sketch3.addConstraint(Sketcher.Constraint("Symmetric", 15, 2, 24, 2, -2))
sketch3.addConstraint(Sketcher.Constraint("Symmetric", 14, 2, 25, 2, -2))
sketch3.addConstraint(Sketcher.Constraint("Symmetric", 13, 2, 26, 2, -2))
sketch3.addConstraint(Sketcher.Constraint("Symmetric", 18, 2, 27, 2, -2))
sketch3.addConstraint(Sketcher.Constraint("Symmetric", 17, 2, 28, 2, -2))
sketch3.addConstraint(Sketcher.Constraint("Symmetric", 10, 2, 29, 2, -2))
sketch3.addConstraint(Sketcher.Constraint("Symmetric", 9, 2, 30, 2, -2))
sketch3.addConstraint(Sketcher.Constraint("Symmetric", 8, 2, 31, 2, -2))
sketch3.addConstraint(Sketcher.Constraint("Symmetric", 7, 2, 32, 2, -2))
sketch3.addConstraint(Sketcher.Constraint("Symmetric", 12, 2, 33, 2, -2))
sketch3.addConstraint(Sketcher.Constraint("Symmetric", 11, 2, 34, 2, -2))
sketch3.addConstraint(Sketcher.Constraint("Symmetric", 4, 2, 35, 2, -2))
sketch3.addConstraint(Sketcher.Constraint("Symmetric", 3, 2, 36, 2, -2))
sketch3.addConstraint(Sketcher.Constraint("Symmetric", 2, 2, 37, 2, -2))
sketch3.addConstraint(Sketcher.Constraint("Symmetric", 1, 2, 38, 2, -2))
sketch3.addConstraint(Sketcher.Constraint("Symmetric", 6, 2, 39, 2, -2))
sketch3.addConstraint(Sketcher.Constraint("Symmetric", 5, 2, 40, 2, -2))
sketch3.addConstraint(Sketcher.Constraint("Parallel", 1, 2))
sketch3.addConstraint(Sketcher.Constraint("Perpendicular", 2, 3))
sketch3.addConstraint(Sketcher.Constraint("Perpendicular", 3, 4))
sketch3.addConstraint(Sketcher.Constraint("Parallel", 4, 5))
sketch3.addConstraint(Sketcher.Constraint("Perpendicular", 5, 6))
sketch3.addConstraint(Sketcher.Constraint("Parallel", 7, 8))
sketch3.addConstraint(Sketcher.Constraint("Perpendicular", 8, 9))
sketch3.addConstraint(Sketcher.Constraint("Perpendicular", 9, 10))
sketch3.addConstraint(Sketcher.Constraint("Parallel", 10, 11))
sketch3.addConstraint(Sketcher.Constraint("Perpendicular", 11, 12))
sketch3.addConstraint(Sketcher.Constraint("Parallel", 13, 14))
sketch3.addConstraint(Sketcher.Constraint("Perpendicular", 14, 15))
sketch3.addConstraint(Sketcher.Constraint("Perpendicular", 15, 16))
sketch3.addConstraint(Sketcher.Constraint("Parallel", 16, 17))
sketch3.addConstraint(Sketcher.Constraint("Perpendicular", 17, 18))
sketch3.addConstraint(Sketcher.Constraint("Vertical", 21, 2, 59, 2))
sketch3.addConstraint(Sketcher.Constraint("Equal", 2, 4))
sketch3.addConstraint(Sketcher.Constraint("Equal", 5, 7))
sketch3.addConstraint(Sketcher.Constraint("Equal", 4, 8))
sketch3.addConstraint(Sketcher.Constraint("Equal", 6, 9))
sketch3.addConstraint(Sketcher.Constraint("Equal", 8, 10))
sketch3.addConstraint(Sketcher.Constraint("Equal", 11, 13))
sketch3.addConstraint(Sketcher.Constraint("Equal", 10, 14))
sketch3.addConstraint(Sketcher.Constraint("Equal", 12, 15))
sketch3.addConstraint(Sketcher.Constraint("Equal", 14, 16))
sketch3.addConstraint(Sketcher.Constraint("Diameter", 0, 28.0))
sketch3.addConstraint(Sketcher.Constraint("Distance", 1, 0.745202))
sketch3.addConstraint(Sketcher.Constraint("DistanceY", 19, 2, 19, 1, 2.90747))
sketch3.addConstraint(Sketcher.Constraint("DistanceX", -1, 1, 12, 2, 11.578801))
sketch3.addConstraint(Sketcher.Constraint("DistanceY", -1, 1, 16, 2, 12.263501))
sketch3.addConstraint(Sketcher.Constraint("Distance", 2, 2.162269))
sketch3.addConstraint(Sketcher.Constraint("DistanceX", 20, 2, 20, 1, 2.869156))
sketch3.addConstraint(Sketcher.Constraint("DistanceX", -1, 1, 1, 2, 12.91588))
sketch3.addConstraint(Sketcher.Constraint("DistanceX", -1, 1, 5, 2, 13.003951))
sketch3.addConstraint(Sketcher.Constraint("DistanceX", -1, 1, 7, 2, 10.996179))
sketch3.addConstraint(Sketcher.Constraint("DistanceX", -1, 1, 9, 2, 7.51676))
sketch3.addConstraint(Sketcher.Constraint("DistanceY", -1, 1, 9, 2, 7.82931))
sketch3.addConstraint(Sketcher.Constraint("DistanceX", -1, 1, 13, 2, 6.89855))
sketch3.addConstraint(Sketcher.Constraint("DistanceY", -1, 1, 13, 2, 11.018621))
sketch3.addConstraint(Sketcher.Constraint("DistanceY", -1, 1, 1, 2, 1.476495))
sketch3.addConstraint(Sketcher.Constraint("DistanceY", -1, 1, 19, 2, 10.758335))
pad3 = doc.addObject("PartDesign::Pad", "Pad002")
body.addObject(pad3)
pad3.Profile = sketch3
pad3.Length = 1

doc.recompute()
